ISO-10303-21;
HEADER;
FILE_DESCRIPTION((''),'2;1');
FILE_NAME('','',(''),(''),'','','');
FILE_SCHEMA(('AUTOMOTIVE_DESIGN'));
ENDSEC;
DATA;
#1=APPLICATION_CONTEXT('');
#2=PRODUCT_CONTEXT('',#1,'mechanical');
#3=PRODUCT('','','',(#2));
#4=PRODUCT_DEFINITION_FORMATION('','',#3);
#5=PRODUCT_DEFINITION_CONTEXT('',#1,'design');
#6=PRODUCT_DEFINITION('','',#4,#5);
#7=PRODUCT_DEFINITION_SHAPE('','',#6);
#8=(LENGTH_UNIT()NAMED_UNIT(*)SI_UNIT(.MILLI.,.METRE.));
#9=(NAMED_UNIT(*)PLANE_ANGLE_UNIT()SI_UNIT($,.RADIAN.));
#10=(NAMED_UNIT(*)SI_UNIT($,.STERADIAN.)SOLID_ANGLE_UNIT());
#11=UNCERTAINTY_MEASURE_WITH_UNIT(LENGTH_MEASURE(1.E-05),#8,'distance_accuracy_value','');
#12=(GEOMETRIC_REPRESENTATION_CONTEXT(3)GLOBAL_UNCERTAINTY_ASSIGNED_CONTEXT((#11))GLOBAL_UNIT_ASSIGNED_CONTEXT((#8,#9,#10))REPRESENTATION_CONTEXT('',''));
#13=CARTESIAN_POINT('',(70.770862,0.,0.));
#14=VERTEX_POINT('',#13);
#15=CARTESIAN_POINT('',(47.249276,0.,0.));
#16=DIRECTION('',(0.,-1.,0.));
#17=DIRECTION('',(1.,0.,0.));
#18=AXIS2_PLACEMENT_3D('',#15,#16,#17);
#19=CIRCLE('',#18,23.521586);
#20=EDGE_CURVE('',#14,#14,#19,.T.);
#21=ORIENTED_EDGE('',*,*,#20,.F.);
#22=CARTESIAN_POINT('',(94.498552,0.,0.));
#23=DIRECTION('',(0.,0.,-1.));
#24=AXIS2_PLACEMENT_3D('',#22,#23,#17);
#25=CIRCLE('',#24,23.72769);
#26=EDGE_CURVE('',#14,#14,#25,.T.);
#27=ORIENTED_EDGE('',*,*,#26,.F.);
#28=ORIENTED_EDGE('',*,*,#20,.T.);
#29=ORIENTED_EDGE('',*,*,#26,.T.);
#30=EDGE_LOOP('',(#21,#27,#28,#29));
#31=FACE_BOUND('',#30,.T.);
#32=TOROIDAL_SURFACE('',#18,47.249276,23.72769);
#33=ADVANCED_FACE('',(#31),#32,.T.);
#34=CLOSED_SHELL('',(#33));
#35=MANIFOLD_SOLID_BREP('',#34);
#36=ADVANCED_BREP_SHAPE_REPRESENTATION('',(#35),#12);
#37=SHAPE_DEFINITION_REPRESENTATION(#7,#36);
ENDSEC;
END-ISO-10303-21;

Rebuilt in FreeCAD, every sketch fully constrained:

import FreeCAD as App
import Part
import Sketcher

doc = App.newDocument("Part")
body = doc.addObject("PartDesign::Body", "Body")

sketch1 = doc.addObject("Sketcher::SketchObject", "Sketch")
body.addObject(sketch1)
sketch1.AttachmentSupport = (doc.XY_Plane, [""])
sketch1.MapMode = "FlatFace"
sketch1.addGeometry(Part.Circle(App.Vector(0, 0, 0), App.Vector(0, 0, 1), 24), False)
sketch1.addConstraint(Sketcher.Constraint("Coincident", 0, 3, -1, 1))
sketch1.addConstraint(Sketcher.Constraint("Diameter", 0, 47.45538))

sketch2 = doc.addObject("Sketcher::SketchObject", "Sketch001")
body.addObject(sketch2)
sketch2.AttachmentSupport = (doc.XZ_Plane, [""])
sketch2.MapMode = "FlatFace"
sketch2.addGeometry(Part.Circle(App.Vector(47, 0, 0), App.Vector(0, 0, 1), 47), False)
sketch2.addConstraint(Sketcher.Constraint("PointOnObject", 0, 3, -1))
sketch2.addConstraint(Sketcher.Constraint("Diameter", 0, 94.757206))
sketch2.addConstraint(Sketcher.Constraint("DistanceX", -1, 1, 0, 3, 47.249276))
doc.recompute()

additivepipe = doc.addObject("PartDesign::AdditivePipe", "AdditivePipe")
body.addObject(additivepipe)
additivepipe.Profile = sketch1
additivepipe.Spine = (sketch2, ["Edge1"])

doc.recompute()
